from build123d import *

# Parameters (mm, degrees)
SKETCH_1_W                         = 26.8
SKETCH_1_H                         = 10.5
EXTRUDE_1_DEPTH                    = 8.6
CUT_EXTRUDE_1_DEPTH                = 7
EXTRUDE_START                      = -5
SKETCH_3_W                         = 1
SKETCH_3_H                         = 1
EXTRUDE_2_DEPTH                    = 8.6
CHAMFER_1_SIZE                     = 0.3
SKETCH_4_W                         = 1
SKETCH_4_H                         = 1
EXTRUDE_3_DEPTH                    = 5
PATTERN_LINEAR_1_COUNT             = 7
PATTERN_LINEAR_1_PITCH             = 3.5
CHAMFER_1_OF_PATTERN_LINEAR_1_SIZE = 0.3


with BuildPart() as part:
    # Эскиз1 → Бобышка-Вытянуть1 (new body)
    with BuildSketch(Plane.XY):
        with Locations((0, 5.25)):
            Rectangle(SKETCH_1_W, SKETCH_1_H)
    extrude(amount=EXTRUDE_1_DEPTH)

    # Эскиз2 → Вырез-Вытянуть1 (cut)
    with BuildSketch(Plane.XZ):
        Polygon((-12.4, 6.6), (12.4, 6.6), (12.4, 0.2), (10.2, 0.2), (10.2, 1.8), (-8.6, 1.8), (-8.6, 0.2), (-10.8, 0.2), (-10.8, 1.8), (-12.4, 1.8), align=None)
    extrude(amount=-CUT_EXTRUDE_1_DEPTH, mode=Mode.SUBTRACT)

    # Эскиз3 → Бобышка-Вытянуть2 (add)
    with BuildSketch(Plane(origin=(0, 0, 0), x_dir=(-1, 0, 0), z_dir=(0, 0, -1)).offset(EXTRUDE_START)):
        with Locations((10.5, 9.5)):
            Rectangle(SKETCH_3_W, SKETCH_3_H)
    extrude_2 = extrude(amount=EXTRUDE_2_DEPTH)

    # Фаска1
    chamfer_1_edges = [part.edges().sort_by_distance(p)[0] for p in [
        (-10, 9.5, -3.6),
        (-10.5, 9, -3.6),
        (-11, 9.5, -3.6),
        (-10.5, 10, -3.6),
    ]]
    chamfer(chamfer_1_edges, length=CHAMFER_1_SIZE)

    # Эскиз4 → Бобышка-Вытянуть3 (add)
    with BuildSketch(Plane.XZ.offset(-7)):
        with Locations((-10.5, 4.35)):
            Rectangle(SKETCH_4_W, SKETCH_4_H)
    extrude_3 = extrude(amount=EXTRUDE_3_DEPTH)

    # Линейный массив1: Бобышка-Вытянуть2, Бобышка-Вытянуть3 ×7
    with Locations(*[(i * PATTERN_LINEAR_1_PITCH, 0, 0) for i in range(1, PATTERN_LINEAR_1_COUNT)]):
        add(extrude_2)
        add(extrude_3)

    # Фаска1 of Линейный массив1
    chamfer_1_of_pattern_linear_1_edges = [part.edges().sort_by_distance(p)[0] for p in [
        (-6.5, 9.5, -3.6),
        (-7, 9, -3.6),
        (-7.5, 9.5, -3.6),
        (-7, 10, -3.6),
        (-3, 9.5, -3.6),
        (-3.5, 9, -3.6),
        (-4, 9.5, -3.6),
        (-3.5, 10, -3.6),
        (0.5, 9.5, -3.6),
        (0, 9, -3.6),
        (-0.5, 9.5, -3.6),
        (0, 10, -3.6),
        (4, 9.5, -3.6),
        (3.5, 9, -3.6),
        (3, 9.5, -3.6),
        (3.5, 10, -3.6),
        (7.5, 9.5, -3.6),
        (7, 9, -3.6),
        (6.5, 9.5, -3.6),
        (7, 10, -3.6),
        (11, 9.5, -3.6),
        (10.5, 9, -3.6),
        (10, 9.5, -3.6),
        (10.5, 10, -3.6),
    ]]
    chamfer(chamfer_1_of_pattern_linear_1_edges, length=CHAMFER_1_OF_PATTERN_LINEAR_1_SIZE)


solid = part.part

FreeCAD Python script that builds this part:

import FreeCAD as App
import Part
import Sketcher
from FreeCAD import Vector


def edges_at(feature, points):
    """Names of the edges that pass closest to the given points."""
    edges = feature.Shape.Edges
    near = lambda p: min(range(len(edges)), key=lambda i: edges[i].distToShape(Part.Vertex(*p))[0])
    return sorted({f"Edge{near(p) + 1}" for p in points})

doc = App.newDocument("Part")
params = doc.addObject("Spreadsheet::Sheet", "Params")
for row, (alias, value) in enumerate([
    ("sketch1_width", "26.8 mm"),
    ("sketch1_height", "10.5 mm"),
    ("pad1_length", "8.6 mm"),
    ("sketch2_width", "24.8 mm"),
    ("sketch2_width2", "1.6 mm"),
    ("sketch2_width3", "2.2 mm"),
    ("sketch2_height", "4.8 mm"),
    ("pocket1_length", "7 mm"),
    ("sketch3_width", "1 mm"),
    ("pad2_length", "8.6 mm"),
    ("chamfer_size", "0.3 mm"),
    ("sketch4_width", "1 mm"),
    ("pad3_length", "5 mm"),
    ("linearpattern_pitch", "3.5 mm"),
    ("chamfer2_size", "0.3 mm"),
], start=1):
    params.set(f"A{row}", alias)
    params.set(f"B{row}", "=" + value)
    params.setAlias(f"B{row}", alias)

body = doc.addObject("PartDesign::Body", "Body")

sketch1 = body.newObject("Sketcher::SketchObject", "Sketch")
sketch1.AttachmentSupport = (doc.getObject("XY_Plane"), [""])
sketch1.MapMode = "FlatFace"
sketch1.addGeometry([
    Part.LineSegment(Vector(-13.4, 10.5, 0), Vector(-13.4, 0, 0)),
    Part.LineSegment(Vector(-13.4, 0, 0), Vector(13.4, 0, 0)),
    Part.LineSegment(Vector(13.4, 0, 0), Vector(13.4, 10.5, 0)),
    Part.LineSegment(Vector(13.4, 10.5, 0), Vector(-13.4, 10.5, 0)),
], False)
sketch1.addConstraint([
    Sketcher.Constraint("Coincident", 0, 2, 1, 1),
    Sketcher.Constraint("Coincident", 1, 2, 2, 1),
    Sketcher.Constraint("Coincident", 2, 2, 3, 1),
    Sketcher.Constraint("Coincident", 3, 2, 0, 1),
    Sketcher.Constraint("Vertical", 0),
    Sketcher.Constraint("Horizontal", 1),
    Sketcher.Constraint("Vertical", 2),
    Sketcher.Constraint("Horizontal", 3),
    Sketcher.Constraint("Symmetric", 0, 2, 1, 2, -1, 1),
    Sketcher.Constraint("DistanceX", 1, 1, 1, 2, 26.8),
    Sketcher.Constraint("DistanceY", 0, 2, 0, 1, 10.5),
])
sketch1.setExpression("Constraints[9]", "Params.sketch1_width")
sketch1.setExpression("Constraints[10]", "Params.sketch1_height")
pad1 = body.newObject("PartDesign::Pad", "Pad")
pad1.Profile = sketch1
pad1.setExpression("Length", "Params.pad1_length")

sketch2 = body.newObject("Sketcher::SketchObject", "Sketch001")
sketch2.AttachmentSupport = (doc.getObject("XZ_Plane"), [""])
sketch2.MapMode = "FlatFace"
sketch2.addGeometry([
    Part.LineSegment(Vector(12.4, 6.6, 0), Vector(-12.4, 6.6, 0)),
    Part.LineSegment(Vector(-12.4, 6.6, 0), Vector(-12.4, 1.8, 0)),
    Part.LineSegment(Vector(-12.4, 1.8, 0), Vector(-10.8, 1.8, 0)),
    Part.LineSegment(Vector(-10.8, 1.8, 0), Vector(-10.8, 0.2, 0)),
    Part.LineSegment(Vector(-10.8, 0.2, 0), Vector(-8.6, 0.2, 0)),
    Part.LineSegment(Vector(-8.6, 0.2, 0), Vector(-8.6, 1.8, 0)),
    Part.LineSegment(Vector(-8.6, 1.8, 0), Vector(10.2, 1.8, 0)),
    Part.LineSegment(Vector(10.2, 1.8, 0), Vector(10.2, 0.2, 0)),
    Part.LineSegment(Vector(10.2, 0.2, 0), Vector(12.4, 0.2, 0)),
    Part.LineSegment(Vector(12.4, 0.2, 0), Vector(12.4, 6.6, 0)),
], False)
sketch2.addConstraint([
    Sketcher.Constraint("Coincident", 0, 2, 1, 1),
    Sketcher.Constraint("Coincident", 1, 2, 2, 1),
    Sketcher.Constraint("Coincident", 2, 2, 3, 1),
    Sketcher.Constraint("Coincident", 3, 2, 4, 1),
    Sketcher.Constraint("Coincident", 4, 2, 5, 1),
    Sketcher.Constraint("Coincident", 5, 2, 6, 1),
    Sketcher.Constraint("Coincident", 6, 2, 7, 1),
    Sketcher.Constraint("Coincident", 7, 2, 8, 1),
    Sketcher.Constraint("Coincident", 8, 2, 9, 1),
    Sketcher.Constraint("Coincident", 9, 2, 0, 1),
    Sketcher.Constraint("Horizontal", 0),
    Sketcher.Constraint("Vertical", 1),
    Sketcher.Constraint("Horizontal", 2),
    Sketcher.Constraint("Vertical", 3),
    Sketcher.Constraint("Horizontal", 4),
    Sketcher.Constraint("Vertical", 5),
    Sketcher.Constraint("Horizontal", 6),
    Sketcher.Constraint("Vertical", 7),
    Sketcher.Constraint("Horizontal", 8),
    Sketcher.Constraint("Vertical", 9),
    Sketcher.Constraint("Horizontal", 2, 2, 5, 2),
    Sketcher.Constraint("Horizontal", 4, 2, 7, 2),
    Sketcher.Constraint("Equal", 4, 8),
    Sketcher.Constraint("Equal", 2, 3),
    Sketcher.Constraint("DistanceX", 0, 2, 0, 1, 24.8),
    Sketcher.Constraint("DistanceX", 2, 1, 2, 2, 1.6),
    Sketcher.Constraint("DistanceX", 4, 1, 4, 2, 2.2),
    Sketcher.Constraint("DistanceY", 1, 2, 1, 1, 4.8),
    Sketcher.Constraint("DistanceX", 0, 2, -1, 1, 12.4),
    Sketcher.Constraint("DistanceY", -1, 1, 0, 2, 6.6),
])
sketch2.setExpression("Constraints[24]", "Params.sketch2_width")
sketch2.setExpression("Constraints[25]", "Params.sketch2_width2")
sketch2.setExpression("Constraints[26]", "Params.sketch2_width3")
sketch2.setExpression("Constraints[27]", "Params.sketch2_height")
pocket1 = body.newObject("PartDesign::Pocket", "Pocket")
pocket1.Profile = sketch2
pocket1.setExpression("Length", "Params.pocket1_length")

sketch3 = body.newObject("Sketcher::SketchObject", "Sketch002")
sketch3.AttachmentSupport = (doc.getObject("XY_Plane"), [""])
sketch3.MapMode = "FlatFace"
sketch3.AttachmentOffset = App.Placement(Vector(0, 0, 5), App.Rotation())
sketch3.addGeometry([
    Part.LineSegment(Vector(-10, 10, 0), Vector(-10, 9, 0)),
    Part.LineSegment(Vector(-10, 9, 0), Vector(-11, 9, 0)),
    Part.LineSegment(Vector(-11, 9, 0), Vector(-11, 10, 0)),
    Part.LineSegment(Vector(-11, 10, 0), Vector(-10, 10, 0)),
], False)
sketch3.addConstraint([
    Sketcher.Constraint("Coincident", 0, 2, 1, 1),
    Sketcher.Constraint("Coincident", 1, 2, 2, 1),
    Sketcher.Constraint("Coincident", 2, 2, 3, 1),
    Sketcher.Constraint("Coincident", 3, 2, 0, 1),
    Sketcher.Constraint("Vertical", 0),
    Sketcher.Constraint("Horizontal", 1),
    Sketcher.Constraint("Vertical", 2),
    Sketcher.Constraint("Horizontal", 3),
    Sketcher.Constraint("Equal", 3, 0),
    Sketcher.Constraint("DistanceX", 1, 2, 1, 1, 1.0),
    Sketcher.Constraint("DistanceX", 0, 2, -1, 1, 10.0),
    Sketcher.Constraint("DistanceY", -1, 1, 0, 2, 9.0),
])
sketch3.setExpression("Constraints[9]", "Params.sketch3_width")
pad2 = body.newObject("PartDesign::Pad", "Pad001")
pad2.Profile = sketch3
pad2.setExpression("Length", "Params.pad2_length")
pad2.Reversed = True
doc.recompute()

chamfer = body.newObject("PartDesign::Chamfer", "Chamfer")
chamfer.Base = (pad2, edges_at(pad2, [
    (-10, 9.5, -3.6),
    (-10.5, 9, -3.6),
    (-11, 9.5, -3.6),
    (-10.5, 10, -3.6),
]))
chamfer.setExpression("Size", "Params.chamfer_size")

sketch4 = body.newObject("Sketcher::SketchObject", "Sketch003")
sketch4.AttachmentSupport = (doc.getObject("XZ_Plane"), [""])
sketch4.MapMode = "FlatFace"
sketch4.AttachmentOffset = App.Placement(Vector(0, 0, -7), App.Rotation())
sketch4.addGeometry([
    Part.LineSegment(Vector(-11, 4.85, 0), Vector(-11, 3.85, 0)),
    Part.LineSegment(Vector(-11, 3.85, 0), Vector(-10, 3.85, 0)),
    Part.LineSegment(Vector(-10, 3.85, 0), Vector(-10, 4.85, 0)),
    Part.LineSegment(Vector(-10, 4.85, 0), Vector(-11, 4.85, 0)),
], False)
sketch4.addConstraint([
    Sketcher.Constraint("Coincident", 0, 2, 1, 1),
    Sketcher.Constraint("Coincident", 1, 2, 2, 1),
    Sketcher.Constraint("Coincident", 2, 2, 3, 1),
    Sketcher.Constraint("Coincident", 3, 2, 0, 1),
    Sketcher.Constraint("Vertical", 0),
    Sketcher.Constraint("Horizontal", 1),
    Sketcher.Constraint("Vertical", 2),
    Sketcher.Constraint("Horizontal", 3),
    Sketcher.Constraint("Equal", 3, 0),
    Sketcher.Constraint("DistanceX", 1, 1, 1, 2, 1.0),
    Sketcher.Constraint("DistanceX", 0, 2, -1, 1, 11.0),
    Sketcher.Constraint("DistanceY", -1, 1, 0, 2, 3.85),
])
sketch4.setExpression("Constraints[9]", "Params.sketch4_width")
pad3 = body.newObject("PartDesign::Pad", "Pad002")
pad3.Profile = sketch4
pad3.setExpression("Length", "Params.pad3_length")
doc.recompute()

linearpattern = body.newObject("PartDesign::LinearPattern", "LinearPattern")
linearpattern.Originals = [pad2, pad3]
linearpattern.Direction = (doc.getObject("X_Axis"), [""])
linearpattern.Mode = "offset"
linearpattern.setExpression("Offset", "Params.linearpattern_pitch")
linearpattern.Occurrences = 7
body.Tip = linearpattern
doc.recompute()

chamfer2 = body.newObject("PartDesign::Chamfer", "Chamfer001")
chamfer2.Base = (linearpattern, edges_at(linearpattern, [
    (-6.5, 9.5, -3.6),
    (-7, 9, -3.6),
    (-7.5, 9.5, -3.6),
    (-7, 10, -3.6),
    (-3, 9.5, -3.6),
    (-3.5, 9, -3.6),
    (-4, 9.5, -3.6),
    (-3.5, 10, -3.6),
    (0.5, 9.5, -3.6),
    (0, 9, -3.6),
    (-0.5, 9.5, -3.6),
    (0, 10, -3.6),
    (4, 9.5, -3.6),
    (3.5, 9, -3.6),
    (3, 9.5, -3.6),
    (3.5, 10, -3.6),
    (7.5, 9.5, -3.6),
    (7, 9, -3.6),
    (6.5, 9.5, -3.6),
    (7, 10, -3.6),
    (11, 9.5, -3.6),
    (10.5, 9, -3.6),
    (10, 9.5, -3.6),
    (10.5, 10, -3.6),
]))
chamfer2.setExpression("Size", "Params.chamfer2_size")

doc.recompute()
